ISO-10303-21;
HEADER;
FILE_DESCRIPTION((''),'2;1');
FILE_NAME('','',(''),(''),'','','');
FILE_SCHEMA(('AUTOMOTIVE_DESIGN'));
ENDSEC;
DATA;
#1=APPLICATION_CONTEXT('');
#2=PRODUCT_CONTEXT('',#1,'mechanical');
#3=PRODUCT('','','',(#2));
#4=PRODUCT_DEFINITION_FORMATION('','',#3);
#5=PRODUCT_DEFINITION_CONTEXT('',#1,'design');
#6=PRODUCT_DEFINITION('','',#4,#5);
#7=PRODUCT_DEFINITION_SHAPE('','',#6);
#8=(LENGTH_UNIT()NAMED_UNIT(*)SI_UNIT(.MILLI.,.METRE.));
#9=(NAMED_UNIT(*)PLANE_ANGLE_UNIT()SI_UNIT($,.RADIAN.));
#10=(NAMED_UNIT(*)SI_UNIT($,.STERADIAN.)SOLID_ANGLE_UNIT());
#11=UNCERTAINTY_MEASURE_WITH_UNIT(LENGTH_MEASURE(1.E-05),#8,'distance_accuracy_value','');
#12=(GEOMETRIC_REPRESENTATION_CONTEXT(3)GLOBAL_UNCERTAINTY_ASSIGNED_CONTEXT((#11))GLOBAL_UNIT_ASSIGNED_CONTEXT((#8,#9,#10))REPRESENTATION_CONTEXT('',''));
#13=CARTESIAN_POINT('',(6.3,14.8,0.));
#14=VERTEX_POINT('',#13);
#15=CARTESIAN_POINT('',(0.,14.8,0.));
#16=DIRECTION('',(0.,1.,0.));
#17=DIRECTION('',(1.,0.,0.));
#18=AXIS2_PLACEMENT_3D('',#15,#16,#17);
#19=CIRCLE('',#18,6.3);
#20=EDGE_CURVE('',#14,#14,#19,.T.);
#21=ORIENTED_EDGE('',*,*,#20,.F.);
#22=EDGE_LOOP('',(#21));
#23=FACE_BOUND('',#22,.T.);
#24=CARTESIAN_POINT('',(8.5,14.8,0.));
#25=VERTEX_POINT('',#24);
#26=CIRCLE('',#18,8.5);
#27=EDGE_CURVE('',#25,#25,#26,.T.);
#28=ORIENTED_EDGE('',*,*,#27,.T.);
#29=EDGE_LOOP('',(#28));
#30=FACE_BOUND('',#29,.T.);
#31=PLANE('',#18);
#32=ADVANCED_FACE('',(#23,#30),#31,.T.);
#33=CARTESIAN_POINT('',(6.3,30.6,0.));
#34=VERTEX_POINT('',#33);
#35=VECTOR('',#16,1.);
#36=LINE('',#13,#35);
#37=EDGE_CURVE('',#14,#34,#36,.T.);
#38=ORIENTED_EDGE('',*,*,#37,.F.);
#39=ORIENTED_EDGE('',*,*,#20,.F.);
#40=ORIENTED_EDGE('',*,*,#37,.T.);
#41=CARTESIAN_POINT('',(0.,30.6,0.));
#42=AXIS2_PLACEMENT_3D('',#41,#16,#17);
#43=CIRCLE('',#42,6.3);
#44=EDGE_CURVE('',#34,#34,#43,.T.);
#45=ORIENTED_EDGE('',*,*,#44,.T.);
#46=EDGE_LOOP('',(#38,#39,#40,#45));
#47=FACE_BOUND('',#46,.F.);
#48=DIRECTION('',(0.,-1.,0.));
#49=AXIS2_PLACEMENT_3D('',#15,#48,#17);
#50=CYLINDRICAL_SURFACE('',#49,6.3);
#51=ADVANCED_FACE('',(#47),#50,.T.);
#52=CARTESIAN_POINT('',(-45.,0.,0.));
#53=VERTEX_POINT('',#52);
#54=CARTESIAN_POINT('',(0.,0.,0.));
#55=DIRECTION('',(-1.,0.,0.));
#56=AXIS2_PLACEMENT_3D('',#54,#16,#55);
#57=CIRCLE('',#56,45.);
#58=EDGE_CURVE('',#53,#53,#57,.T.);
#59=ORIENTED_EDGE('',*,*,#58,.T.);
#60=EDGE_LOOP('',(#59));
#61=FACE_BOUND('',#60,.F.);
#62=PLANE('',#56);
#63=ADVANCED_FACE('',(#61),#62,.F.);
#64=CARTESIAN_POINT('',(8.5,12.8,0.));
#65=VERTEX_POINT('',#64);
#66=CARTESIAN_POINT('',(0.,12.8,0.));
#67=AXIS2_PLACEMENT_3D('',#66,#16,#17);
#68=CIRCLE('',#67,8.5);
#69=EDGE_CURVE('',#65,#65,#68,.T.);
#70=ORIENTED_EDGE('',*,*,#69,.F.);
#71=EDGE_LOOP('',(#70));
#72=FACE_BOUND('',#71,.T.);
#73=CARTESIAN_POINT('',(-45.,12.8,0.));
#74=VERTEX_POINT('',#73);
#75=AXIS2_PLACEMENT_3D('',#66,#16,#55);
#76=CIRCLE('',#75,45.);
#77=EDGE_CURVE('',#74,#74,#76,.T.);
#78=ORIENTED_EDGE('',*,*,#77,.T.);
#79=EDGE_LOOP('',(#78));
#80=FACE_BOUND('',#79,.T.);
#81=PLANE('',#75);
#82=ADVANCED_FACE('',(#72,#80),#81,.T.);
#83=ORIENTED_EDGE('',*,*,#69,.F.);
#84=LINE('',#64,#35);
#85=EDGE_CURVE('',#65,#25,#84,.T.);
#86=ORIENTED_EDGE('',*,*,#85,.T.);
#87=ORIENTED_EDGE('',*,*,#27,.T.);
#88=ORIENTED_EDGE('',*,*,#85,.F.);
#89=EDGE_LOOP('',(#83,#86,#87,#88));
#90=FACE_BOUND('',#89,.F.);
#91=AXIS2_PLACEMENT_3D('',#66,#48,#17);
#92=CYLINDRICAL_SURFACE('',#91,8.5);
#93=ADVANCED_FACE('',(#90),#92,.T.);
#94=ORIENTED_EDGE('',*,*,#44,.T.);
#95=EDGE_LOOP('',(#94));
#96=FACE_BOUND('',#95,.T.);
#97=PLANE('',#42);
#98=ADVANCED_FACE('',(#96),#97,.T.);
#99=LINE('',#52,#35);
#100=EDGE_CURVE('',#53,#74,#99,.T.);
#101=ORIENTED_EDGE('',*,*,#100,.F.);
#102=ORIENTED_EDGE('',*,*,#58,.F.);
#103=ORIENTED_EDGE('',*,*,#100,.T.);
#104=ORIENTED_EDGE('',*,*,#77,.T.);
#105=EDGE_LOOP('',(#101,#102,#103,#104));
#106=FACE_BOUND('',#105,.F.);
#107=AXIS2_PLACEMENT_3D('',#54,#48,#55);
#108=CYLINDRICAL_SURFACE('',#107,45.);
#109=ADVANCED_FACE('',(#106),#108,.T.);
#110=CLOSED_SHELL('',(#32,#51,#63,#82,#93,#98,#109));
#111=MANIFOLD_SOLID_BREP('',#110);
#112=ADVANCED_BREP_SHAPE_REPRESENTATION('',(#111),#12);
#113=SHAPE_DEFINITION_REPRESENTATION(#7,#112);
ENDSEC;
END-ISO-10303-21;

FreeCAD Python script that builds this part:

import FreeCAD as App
import Part
import Sketcher
Q = App.Units.Quantity

doc = App.newDocument("Part")
body = doc.addObject("PartDesign::Body", "Body")

sketch1 = body.newObject("Sketcher::SketchObject", "Sketch")
sketch1.AttachmentSupport = (doc.getObject("XZ_Plane"), [""])
sketch1.MapMode = "FlatFace"
sketch1.addGeometry(Part.Circle(App.Vector(0, 0, 0), App.Vector(0, 0, 1), 45), False)
sketch1.addConstraint([
    Sketcher.Constraint("Coincident", 0, 3, -1, 1),
    Sketcher.Constraint("Diameter", 0, Q("90 mm")),
])
pad1 = body.newObject("PartDesign::Pad", "Pad")
pad1.Profile = sketch1
pad1.Length = 12.8
pad1.Reversed = True

sketch2 = body.newObject("Sketcher::SketchObject", "Sketch001")
sketch2.AttachmentSupport = (doc.getObject("XZ_Plane"), [""])
sketch2.MapMode = "FlatFace"
sketch2.AttachmentOffset = App.Placement(App.Vector(0, 0, -12.8), App.Rotation())
sketch2.addGeometry(Part.Circle(App.Vector(0, 0, 0), App.Vector(0, 0, 1), 8), False)
sketch2.addConstraint([
    Sketcher.Constraint("Coincident", 0, 3, -1, 1),
    Sketcher.Constraint("Diameter", 0, Q("17 mm")),
])
pad2 = body.newObject("PartDesign::Pad", "Pad001")
pad2.Profile = sketch2
pad2.Length = 2
pad2.Reversed = True

sketch3 = body.newObject("Sketcher::SketchObject", "Sketch002")
sketch3.AttachmentSupport = (doc.getObject("XZ_Plane"), [""])
sketch3.MapMode = "FlatFace"
sketch3.AttachmentOffset = App.Placement(App.Vector(0, 0, -14.8), App.Rotation())
sketch3.addGeometry(Part.Circle(App.Vector(0, 0, 0), App.Vector(0, 0, 1), 6), False)
sketch3.addConstraint([
    Sketcher.Constraint("Coincident", 0, 3, -1, 1),
    Sketcher.Constraint("Diameter", 0, Q("12.6 mm")),
])
pad3 = body.newObject("PartDesign::Pad", "Pad002")
pad3.Profile = sketch3
pad3.Length = 15.8
pad3.Reversed = True

doc.recompute()
